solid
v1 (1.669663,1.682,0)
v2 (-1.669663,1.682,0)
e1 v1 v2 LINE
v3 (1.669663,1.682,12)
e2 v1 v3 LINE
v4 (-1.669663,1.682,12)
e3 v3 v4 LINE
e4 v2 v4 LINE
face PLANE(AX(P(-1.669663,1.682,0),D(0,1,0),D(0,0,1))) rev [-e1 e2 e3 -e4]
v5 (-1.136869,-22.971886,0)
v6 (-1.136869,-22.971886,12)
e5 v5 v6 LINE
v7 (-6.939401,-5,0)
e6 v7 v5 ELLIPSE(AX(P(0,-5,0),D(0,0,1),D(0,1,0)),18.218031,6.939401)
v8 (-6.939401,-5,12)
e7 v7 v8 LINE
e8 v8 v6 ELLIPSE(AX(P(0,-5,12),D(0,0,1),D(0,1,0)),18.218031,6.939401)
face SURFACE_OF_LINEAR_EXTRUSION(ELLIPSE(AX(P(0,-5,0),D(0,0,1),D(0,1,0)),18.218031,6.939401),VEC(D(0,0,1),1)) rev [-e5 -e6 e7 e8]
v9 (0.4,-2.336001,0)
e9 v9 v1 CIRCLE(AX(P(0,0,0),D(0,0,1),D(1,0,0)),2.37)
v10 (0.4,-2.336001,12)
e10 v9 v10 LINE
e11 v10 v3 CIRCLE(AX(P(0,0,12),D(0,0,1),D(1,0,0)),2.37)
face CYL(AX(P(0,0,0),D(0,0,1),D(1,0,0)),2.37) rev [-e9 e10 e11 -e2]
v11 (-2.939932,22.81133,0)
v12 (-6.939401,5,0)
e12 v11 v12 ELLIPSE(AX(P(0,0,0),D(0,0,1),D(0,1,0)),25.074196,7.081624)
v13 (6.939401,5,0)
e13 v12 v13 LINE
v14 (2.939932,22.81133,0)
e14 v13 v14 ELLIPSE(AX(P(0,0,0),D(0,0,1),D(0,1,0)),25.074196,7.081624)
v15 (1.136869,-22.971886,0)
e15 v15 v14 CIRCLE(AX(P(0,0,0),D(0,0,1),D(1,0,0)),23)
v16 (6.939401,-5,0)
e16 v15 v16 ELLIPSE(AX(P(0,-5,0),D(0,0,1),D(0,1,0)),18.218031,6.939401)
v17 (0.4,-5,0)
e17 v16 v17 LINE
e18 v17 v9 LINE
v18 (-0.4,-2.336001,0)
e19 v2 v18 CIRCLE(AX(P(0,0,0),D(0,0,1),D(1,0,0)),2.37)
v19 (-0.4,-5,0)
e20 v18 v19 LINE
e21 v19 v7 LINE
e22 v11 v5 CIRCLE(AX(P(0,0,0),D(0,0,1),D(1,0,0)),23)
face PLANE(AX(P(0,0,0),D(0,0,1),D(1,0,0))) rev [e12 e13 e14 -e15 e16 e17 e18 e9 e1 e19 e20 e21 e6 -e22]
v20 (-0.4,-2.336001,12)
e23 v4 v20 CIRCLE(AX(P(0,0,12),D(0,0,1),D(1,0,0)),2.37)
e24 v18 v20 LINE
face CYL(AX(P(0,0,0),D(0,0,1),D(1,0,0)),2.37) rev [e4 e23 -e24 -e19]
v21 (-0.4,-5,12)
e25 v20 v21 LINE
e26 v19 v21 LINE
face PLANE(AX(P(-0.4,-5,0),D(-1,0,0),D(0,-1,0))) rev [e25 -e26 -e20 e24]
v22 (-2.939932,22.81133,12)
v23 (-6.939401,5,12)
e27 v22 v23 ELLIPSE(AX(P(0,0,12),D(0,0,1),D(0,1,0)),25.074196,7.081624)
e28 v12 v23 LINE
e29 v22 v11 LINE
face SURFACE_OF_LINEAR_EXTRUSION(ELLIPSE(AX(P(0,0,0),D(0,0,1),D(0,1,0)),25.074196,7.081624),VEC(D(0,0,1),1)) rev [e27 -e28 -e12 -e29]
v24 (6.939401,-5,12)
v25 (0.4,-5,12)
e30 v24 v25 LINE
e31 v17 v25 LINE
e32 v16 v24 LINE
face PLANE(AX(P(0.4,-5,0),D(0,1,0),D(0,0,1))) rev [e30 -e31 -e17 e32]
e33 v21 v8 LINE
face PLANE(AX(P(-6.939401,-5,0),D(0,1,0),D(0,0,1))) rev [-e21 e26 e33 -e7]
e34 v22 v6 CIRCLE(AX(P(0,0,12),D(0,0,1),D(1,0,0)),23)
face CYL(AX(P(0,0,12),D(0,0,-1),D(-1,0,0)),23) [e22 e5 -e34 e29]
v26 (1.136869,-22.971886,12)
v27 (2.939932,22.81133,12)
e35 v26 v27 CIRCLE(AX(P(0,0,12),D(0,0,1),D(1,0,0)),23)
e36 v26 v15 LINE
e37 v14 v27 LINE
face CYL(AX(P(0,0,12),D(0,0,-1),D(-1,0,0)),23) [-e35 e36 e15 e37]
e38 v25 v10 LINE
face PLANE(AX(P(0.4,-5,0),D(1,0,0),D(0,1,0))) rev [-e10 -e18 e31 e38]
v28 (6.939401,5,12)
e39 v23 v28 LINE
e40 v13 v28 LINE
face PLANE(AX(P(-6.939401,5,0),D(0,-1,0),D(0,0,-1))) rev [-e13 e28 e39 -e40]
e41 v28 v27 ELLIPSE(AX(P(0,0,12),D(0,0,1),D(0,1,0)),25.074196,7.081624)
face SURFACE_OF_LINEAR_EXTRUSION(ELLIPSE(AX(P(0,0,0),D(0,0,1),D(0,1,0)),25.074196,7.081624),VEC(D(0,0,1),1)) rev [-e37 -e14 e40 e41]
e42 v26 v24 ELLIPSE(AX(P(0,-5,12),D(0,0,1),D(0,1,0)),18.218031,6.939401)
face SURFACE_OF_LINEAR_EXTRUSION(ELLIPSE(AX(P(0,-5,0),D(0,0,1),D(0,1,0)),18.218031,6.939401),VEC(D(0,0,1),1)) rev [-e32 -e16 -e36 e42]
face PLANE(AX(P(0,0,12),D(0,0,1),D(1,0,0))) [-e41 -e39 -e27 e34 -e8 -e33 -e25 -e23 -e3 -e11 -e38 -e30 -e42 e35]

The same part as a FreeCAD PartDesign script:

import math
import FreeCAD as App
import Part
import Sketcher

doc = App.newDocument("Part")
body = doc.addObject("PartDesign::Body", "Body")

# Sketch on XY plane
sketch1 = body.newObject("Sketcher::SketchObject", "Sketch")
sketch1.AttachmentSupport = (doc.getObject("XY_Plane"), [""])
sketch1.MapMode = "FlatFace"
sketch1.addGeometry(Part.Circle(App.Vector(0, 0, 0), App.Vector(0, 0, 1), 23), False)
sketch1.addConstraint([
    Sketcher.Constraint("Coincident", 0, 3, -1, 1),
    Sketcher.Constraint("Diameter", 0, 46.0),
])
pad1 = body.newObject("PartDesign::Pad", "Pad")
pad1.Profile = sketch1
pad1.Length = 12

# Sketch on XY plane
sketch2 = body.newObject("Sketcher::SketchObject", "Sketch001")
sketch2.AttachmentSupport = (doc.getObject("XY_Plane"), [""])
sketch2.MapMode = "FlatFace"
sketch2.AttachmentOffset = App.Placement(App.Vector(0, 0, 12), App.Rotation())
sketch2.addGeometry([
    Part.LineSegment(App.Vector(1.669663, 1.682, 0), App.Vector(-1.669663, 1.682, 0)),  # 0
    Part.ArcOfCircle(Part.Circle(App.Vector(0, 0, 0), App.Vector(0, 0, 1), 2.37), math.radians(134.789111), math.radians(260.283318)),  # 1
    Part.LineSegment(App.Vector(-0.4, -2.336001, 0), App.Vector(-0.4, -5, 0)),  # 2
    Part.LineSegment(App.Vector(-0.4, -5, 0), App.Vector(-6.939401, -5, 0)),  # 3
    Part.BSplineCurve([App.Vector(-6.939401, -5, 0), App.Vector(-6.939401, -23.218031, 0), App.Vector(0, -23.218031, 0), App.Vector(6.939401, -23.218031, 0), App.Vector(6.939401, -5, 0)], [3, 2, 3], [1.570796327, 3.141592654, 4.71238898], False, 2, [1, 0.707106781, 1, 0.707106781, 1], False),  # 4
    Part.LineSegment(App.Vector(6.939401, -5, 0), App.Vector(0.4, -5, 0)),  # 5
    Part.LineSegment(App.Vector(0.4, -5, 0), App.Vector(0.4, -2.336001, 0)),  # 6
    Part.ArcOfCircle(Part.Circle(App.Vector(0, 0, 0), App.Vector(0, 0, 1), 2.37), math.radians(-80.283318), math.radians(45.210889)),  # 7
    Part.LineSegment(App.Vector(-6.939401, 5, 0), App.Vector(6.939401, 5, 0)),  # 8
    Part.BSplineCurve([App.Vector(6.939401, 5, 0), App.Vector(5.785687, 25.074196, 0), App.Vector(0, 25.074196, 0), App.Vector(-5.785687, 25.074196, 0), App.Vector(-6.939401, 5, 0)], [3, 2, 3], [4.913142926, 6.283185307, 7.653227688], False, 2, [1, 0.77440564, 1, 0.77440564, 1], False),  # 9
], False)
sketch2.addConstraint([
    Sketcher.Constraint("Block", 4),
    Sketcher.Constraint("Block", 9),
    Sketcher.Constraint("Coincident", 0, 2, 1, 1),
    Sketcher.Constraint("Coincident", 1, 2, 2, 1),
    Sketcher.Constraint("Coincident", 2, 2, 3, 1),
    Sketcher.Constraint("Coincident", 3, 2, 4, 1),
    Sketcher.Constraint("Coincident", 4, 2, 5, 1),
    Sketcher.Constraint("Coincident", 5, 2, 6, 1),
    Sketcher.Constraint("Coincident", 6, 2, 7, 1),
    Sketcher.Constraint("Coincident", 7, 2, 0, 1),
    Sketcher.Constraint("Coincident", 8, 1, 9, 2),
    Sketcher.Constraint("Coincident", 9, 1, 8, 2),
    Sketcher.Constraint("Horizontal", 0),
    Sketcher.Constraint("Vertical", 2),
    Sketcher.Constraint("Horizontal", 3),
    Sketcher.Constraint("Horizontal", 5),
    Sketcher.Constraint("Vertical", 6),
    Sketcher.Constraint("Coincident", 1, 3, -1, 1),
    Sketcher.Constraint("Coincident", 7, 3, -1, 1),
    Sketcher.Constraint("Equal", 1, 7),
    Sketcher.Constraint("Horizontal", 1, 2, 6, 2),
    Sketcher.Constraint("Radius", 1, 2.37),
    Sketcher.Constraint("DistanceX", 1, 2, -1, 1, 0.4),
    Sketcher.Constraint("DistanceY", -1, 1, 0, 2, 1.682),
])
pocket1 = body.newObject("PartDesign::Pocket", "Pocket")
pocket1.Profile = sketch2
pocket1.Type = "ThroughAll"

doc.recompute()
